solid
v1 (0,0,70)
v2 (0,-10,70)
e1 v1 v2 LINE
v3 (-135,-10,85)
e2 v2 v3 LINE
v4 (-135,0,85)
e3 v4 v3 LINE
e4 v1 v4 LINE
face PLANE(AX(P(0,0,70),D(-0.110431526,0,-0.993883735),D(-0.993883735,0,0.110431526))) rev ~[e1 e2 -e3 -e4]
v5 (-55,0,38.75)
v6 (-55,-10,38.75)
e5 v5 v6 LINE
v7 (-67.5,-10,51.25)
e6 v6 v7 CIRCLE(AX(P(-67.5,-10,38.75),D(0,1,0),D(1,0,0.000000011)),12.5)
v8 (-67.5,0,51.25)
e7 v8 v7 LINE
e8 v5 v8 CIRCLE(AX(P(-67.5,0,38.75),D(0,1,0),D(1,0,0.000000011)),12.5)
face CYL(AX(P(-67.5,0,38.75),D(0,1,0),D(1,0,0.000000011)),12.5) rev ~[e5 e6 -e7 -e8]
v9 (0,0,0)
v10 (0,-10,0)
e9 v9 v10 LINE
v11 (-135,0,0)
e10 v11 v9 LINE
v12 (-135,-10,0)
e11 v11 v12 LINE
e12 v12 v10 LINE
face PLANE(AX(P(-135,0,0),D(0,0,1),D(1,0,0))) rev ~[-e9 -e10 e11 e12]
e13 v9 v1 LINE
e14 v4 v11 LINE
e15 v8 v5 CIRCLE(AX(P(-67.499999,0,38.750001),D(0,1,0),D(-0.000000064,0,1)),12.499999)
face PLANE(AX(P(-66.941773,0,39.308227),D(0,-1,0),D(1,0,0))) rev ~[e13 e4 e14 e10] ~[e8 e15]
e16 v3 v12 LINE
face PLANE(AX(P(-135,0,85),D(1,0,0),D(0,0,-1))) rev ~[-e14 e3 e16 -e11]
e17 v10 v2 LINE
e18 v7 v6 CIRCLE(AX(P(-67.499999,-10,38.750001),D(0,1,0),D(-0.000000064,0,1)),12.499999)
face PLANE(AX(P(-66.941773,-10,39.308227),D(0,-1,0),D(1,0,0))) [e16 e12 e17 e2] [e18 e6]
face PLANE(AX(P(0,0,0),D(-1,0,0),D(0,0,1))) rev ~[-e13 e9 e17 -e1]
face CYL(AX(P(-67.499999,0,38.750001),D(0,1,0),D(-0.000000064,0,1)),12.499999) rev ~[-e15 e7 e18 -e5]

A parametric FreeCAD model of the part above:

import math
import FreeCAD as App
import Part
import Sketcher
from FreeCAD import Vector
Q = App.Units.Quantity

doc = App.newDocument("Part")
body = doc.addObject("PartDesign::Body", "Body")

sketch1 = body.newObject("Sketcher::SketchObject", "Sketch")
sketch1.AttachmentSupport = (doc.getObject("XZ_Plane"), [""])
sketch1.MapMode = "FlatFace"
sketch1.addGeometry([
    Part.LineSegment(Vector(-135, 0, 0), Vector(0, 0, 0)),
    Part.LineSegment(Vector(0, 0, 0), Vector(0, 70, 0)),
    Part.LineSegment(Vector(0, 70, 0), Vector(-135, 85, 0)),
    Part.LineSegment(Vector(-135, 85, 0), Vector(-135, 0, 0)),
    Part.ArcOfCircle(Part.Circle(Vector(-67, 39, 0), Vector(0, 0, 1), 12), math.radians(0), math.radians(90)),
    Part.ArcOfCircle(Part.Circle(Vector(-68, 39, 0), Vector(0, 0, 1), 13), math.radians(90), math.radians(360)),
], False)
sketch1.addConstraint([
    Sketcher.Constraint("Coincident", 0, 2, 1, 1),
    Sketcher.Constraint("Coincident", 1, 2, 2, 1),
    Sketcher.Constraint("Coincident", 2, 2, 3, 1),
    Sketcher.Constraint("Coincident", 3, 2, 0, 1),
    Sketcher.Constraint("Tangent", 4, 1, 5, 2),
    Sketcher.Constraint("Coincident", 5, 1, 4, 2),
    Sketcher.Constraint("Horizontal", 0),
    Sketcher.Constraint("Vertical", 1),
    Sketcher.Constraint("Vertical", 3),
    Sketcher.Constraint("Coincident", 0, 2, -1, 1),
    Sketcher.Constraint("Horizontal", 5, 3, 4, 1),
    Sketcher.Constraint("Vertical", 4, 3, 5, 1),
    Sketcher.Constraint("Radius", 4, Q("12.499999 mm")),
    Sketcher.Constraint("DistanceX", 0, 1, 0, 2, Q("135 mm")),
    Sketcher.Constraint("DistanceY", 1, 1, 1, 2, Q("70 mm")),
    Sketcher.Constraint("DistanceY", 3, 2, 3, 1, Q("85 mm")),
    Sketcher.Constraint("DistanceX", 4, 1, -1, 1, Q("55 mm")),
    Sketcher.Constraint("DistanceY", -1, 1, 4, 3, Q("38.750001 mm")),
])
pad1 = body.newObject("PartDesign::Pad", "Pad")
pad1.Profile = sketch1
pad1.Length = 10

doc.recompute()
